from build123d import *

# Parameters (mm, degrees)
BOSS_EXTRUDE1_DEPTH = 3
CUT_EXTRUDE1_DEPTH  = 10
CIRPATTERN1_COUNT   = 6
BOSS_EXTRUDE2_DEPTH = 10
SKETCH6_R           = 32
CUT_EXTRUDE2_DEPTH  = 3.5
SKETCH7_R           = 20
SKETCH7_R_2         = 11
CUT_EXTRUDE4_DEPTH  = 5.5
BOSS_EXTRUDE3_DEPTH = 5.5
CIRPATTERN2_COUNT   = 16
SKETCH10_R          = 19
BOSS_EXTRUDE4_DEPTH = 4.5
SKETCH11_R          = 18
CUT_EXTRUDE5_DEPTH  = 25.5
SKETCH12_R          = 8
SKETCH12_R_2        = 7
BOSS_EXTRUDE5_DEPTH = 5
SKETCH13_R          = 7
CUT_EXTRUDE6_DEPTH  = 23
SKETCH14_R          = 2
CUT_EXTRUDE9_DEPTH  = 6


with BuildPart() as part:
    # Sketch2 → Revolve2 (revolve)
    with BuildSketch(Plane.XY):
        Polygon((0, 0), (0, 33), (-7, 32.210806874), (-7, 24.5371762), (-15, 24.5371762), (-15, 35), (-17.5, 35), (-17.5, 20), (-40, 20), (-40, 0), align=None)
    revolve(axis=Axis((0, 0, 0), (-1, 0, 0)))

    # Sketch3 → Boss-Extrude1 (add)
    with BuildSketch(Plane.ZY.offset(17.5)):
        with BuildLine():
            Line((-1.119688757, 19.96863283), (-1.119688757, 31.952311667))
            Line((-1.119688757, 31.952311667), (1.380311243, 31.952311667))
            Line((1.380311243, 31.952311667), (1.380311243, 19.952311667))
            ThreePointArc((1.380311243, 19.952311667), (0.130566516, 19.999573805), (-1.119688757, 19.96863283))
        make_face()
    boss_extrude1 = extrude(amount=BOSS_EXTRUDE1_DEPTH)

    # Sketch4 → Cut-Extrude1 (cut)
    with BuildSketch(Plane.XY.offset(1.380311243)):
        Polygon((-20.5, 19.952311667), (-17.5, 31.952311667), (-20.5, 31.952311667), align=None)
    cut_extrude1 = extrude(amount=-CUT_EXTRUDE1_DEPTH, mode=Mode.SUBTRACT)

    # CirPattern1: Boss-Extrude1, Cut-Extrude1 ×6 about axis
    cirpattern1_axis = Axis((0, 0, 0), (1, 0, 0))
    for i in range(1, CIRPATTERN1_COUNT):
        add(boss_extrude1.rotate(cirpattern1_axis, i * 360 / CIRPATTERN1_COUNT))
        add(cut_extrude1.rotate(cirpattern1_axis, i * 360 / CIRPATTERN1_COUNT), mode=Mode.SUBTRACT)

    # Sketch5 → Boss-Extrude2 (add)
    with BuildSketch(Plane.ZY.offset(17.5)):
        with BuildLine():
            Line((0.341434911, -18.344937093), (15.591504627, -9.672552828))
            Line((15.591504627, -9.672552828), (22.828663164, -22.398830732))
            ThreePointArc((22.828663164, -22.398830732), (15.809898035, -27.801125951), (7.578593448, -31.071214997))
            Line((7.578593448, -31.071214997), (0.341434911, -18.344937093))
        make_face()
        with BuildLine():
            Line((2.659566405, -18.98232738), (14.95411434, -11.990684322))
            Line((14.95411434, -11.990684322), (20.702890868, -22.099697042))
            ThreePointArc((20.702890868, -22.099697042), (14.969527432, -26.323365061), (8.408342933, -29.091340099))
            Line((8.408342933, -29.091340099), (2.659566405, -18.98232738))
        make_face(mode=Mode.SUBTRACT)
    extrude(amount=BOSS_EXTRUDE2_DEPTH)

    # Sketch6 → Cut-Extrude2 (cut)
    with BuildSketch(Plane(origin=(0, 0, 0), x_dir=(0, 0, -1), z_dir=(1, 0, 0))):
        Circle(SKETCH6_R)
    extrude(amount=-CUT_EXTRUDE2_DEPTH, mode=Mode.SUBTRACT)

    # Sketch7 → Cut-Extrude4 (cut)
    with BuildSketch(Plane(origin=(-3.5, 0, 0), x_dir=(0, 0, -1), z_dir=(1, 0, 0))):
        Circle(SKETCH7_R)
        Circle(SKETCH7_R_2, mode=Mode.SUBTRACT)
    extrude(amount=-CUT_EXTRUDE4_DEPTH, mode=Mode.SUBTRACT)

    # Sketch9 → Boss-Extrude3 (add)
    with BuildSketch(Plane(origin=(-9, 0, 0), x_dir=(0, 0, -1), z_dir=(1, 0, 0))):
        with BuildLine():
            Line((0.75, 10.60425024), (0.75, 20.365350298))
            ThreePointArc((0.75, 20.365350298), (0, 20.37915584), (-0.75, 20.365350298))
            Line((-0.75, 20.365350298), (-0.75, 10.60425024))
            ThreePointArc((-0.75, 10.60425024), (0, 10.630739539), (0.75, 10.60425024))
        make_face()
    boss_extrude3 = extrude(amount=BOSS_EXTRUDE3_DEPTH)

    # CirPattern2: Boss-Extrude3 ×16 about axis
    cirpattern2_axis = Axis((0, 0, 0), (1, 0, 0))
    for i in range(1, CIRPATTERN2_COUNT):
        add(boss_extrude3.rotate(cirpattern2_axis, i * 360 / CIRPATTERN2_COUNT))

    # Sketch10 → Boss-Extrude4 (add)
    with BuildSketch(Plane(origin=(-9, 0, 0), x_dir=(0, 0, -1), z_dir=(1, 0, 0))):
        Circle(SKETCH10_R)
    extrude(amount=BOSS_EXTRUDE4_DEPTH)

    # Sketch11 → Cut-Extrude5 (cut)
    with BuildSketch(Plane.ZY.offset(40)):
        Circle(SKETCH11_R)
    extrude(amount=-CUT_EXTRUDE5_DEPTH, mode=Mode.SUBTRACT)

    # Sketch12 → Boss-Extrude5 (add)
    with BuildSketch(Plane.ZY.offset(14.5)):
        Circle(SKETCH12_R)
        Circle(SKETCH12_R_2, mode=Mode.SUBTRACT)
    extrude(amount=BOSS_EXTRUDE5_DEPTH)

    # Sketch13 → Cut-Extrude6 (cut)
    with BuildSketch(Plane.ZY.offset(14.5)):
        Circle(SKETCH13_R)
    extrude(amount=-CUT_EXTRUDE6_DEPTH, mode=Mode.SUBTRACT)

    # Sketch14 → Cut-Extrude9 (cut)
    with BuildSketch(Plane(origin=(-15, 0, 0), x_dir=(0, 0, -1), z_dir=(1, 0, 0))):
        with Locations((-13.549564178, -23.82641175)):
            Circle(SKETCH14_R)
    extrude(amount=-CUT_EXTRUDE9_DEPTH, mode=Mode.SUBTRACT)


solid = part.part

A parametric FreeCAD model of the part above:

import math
import FreeCAD as App
import Part
import Sketcher
Q = App.Units.Quantity

doc = App.newDocument("Part")
params = doc.addObject("Spreadsheet::Sheet", "Params")
for row, (alias, value) in enumerate([
    ("sketch1_width", "8 mm"),
    ("sketch1_width2", "40 mm"),
    ("sketch1_height", "33 mm"),
    ("sketch1_height2", "15 mm"),
    ("sketch1_height3", "20 mm"),
    ("revolution_angle", "360 deg"),
    ("sketch2_radius", "20 mm"),
    ("sketch2_width", "12 mm"),
    ("sketch2_height", "2.5 mm"),
    ("pad1_length", "3 mm"),
    ("sketch3_width", "3 mm"),
    ("sketch3_height", "12 mm"),
    ("pocket1_length", "10 mm"),
    ("pad2_length", "10 mm"),
    ("sketch5_diameter", "64 mm"),
    ("pocket2_length", "3.5 mm"),
    ("sketch6_diameter", "40 mm"),
    ("sketch6_diameter2", "22 mm"),
    ("pocket3_length", "5.5 mm"),
    ("pad3_length", "5.5 mm"),
    ("sketch8_diameter", "38 mm"),
    ("pad4_length", "4.5 mm"),
    ("sketch9_diameter", "36 mm"),
    ("pocket4_length", "25.5 mm"),
    ("sketch10_diameter", "16 mm"),
    ("sketch10_diameter2", "14 mm"),
    ("pad5_length", "5 mm"),
    ("sketch11_diameter", "14 mm"),
    ("pocket5_length", "23 mm"),
    ("sketch12_diameter", "4 mm"),
    ("pocket6_length", "6 mm"),
], start=1):
    params.set(f"A{row}", alias)
    params.set(f"B{row}", "=" + value)
    params.setAlias(f"B{row}", alias)

body = doc.addObject("PartDesign::Body", "Body")

# Sketch on XY plane
sketch1 = doc.addObject("Sketcher::SketchObject", "Sketch")
body.addObject(sketch1)
sketch1.AttachmentSupport = (doc.XY_Plane, [""])
sketch1.MapMode = "FlatFace"
sketch1.addGeometry([
    Part.LineSegment(App.Vector(0, 0, 0), App.Vector(0, 33, 0)),  # 0
    Part.LineSegment(App.Vector(0, 33, 0), App.Vector(-7, 32.2, 0)),  # 1
    Part.LineSegment(App.Vector(-7, 32.2, 0), App.Vector(-7, 24.5, 0)),  # 2
    Part.LineSegment(App.Vector(-7, 24.5, 0), App.Vector(-15, 24.5, 0)),  # 3
    Part.LineSegment(App.Vector(-15, 24.5, 0), App.Vector(-15, 35, 0)),  # 4
    Part.LineSegment(App.Vector(-15, 35, 0), App.Vector(-17.5, 35, 0)),  # 5
    Part.LineSegment(App.Vector(-17.5, 35, 0), App.Vector(-17.5, 20, 0)),  # 6
    Part.LineSegment(App.Vector(-17.5, 20, 0), App.Vector(-40, 20, 0)),  # 7
    Part.LineSegment(App.Vector(-40, 20, 0), App.Vector(-40, 0, 0)),  # 8
    Part.LineSegment(App.Vector(-40, 0, 0), App.Vector(0, 0, 0)),  # 9
], False)
sketch1.addConstraint([
    Sketcher.Constraint("Coincident", 0, 2, 1, 1),
    Sketcher.Constraint("Coincident", 1, 2, 2, 1),
    Sketcher.Constraint("Coincident", 2, 2, 3, 1),
    Sketcher.Constraint("Coincident", 3, 2, 4, 1),
    Sketcher.Constraint("Coincident", 4, 2, 5, 1),
    Sketcher.Constraint("Coincident", 5, 2, 6, 1),
    Sketcher.Constraint("Coincident", 6, 2, 7, 1),
    Sketcher.Constraint("Coincident", 7, 2, 8, 1),
    Sketcher.Constraint("Coincident", 8, 2, 9, 1),
    Sketcher.Constraint("Coincident", 9, 2, 0, 1),
    Sketcher.Constraint("Vertical", 0),
    Sketcher.Constraint("Vertical", 2),
    Sketcher.Constraint("Horizontal", 3),
    Sketcher.Constraint("Vertical", 4),
    Sketcher.Constraint("Horizontal", 5),
    Sketcher.Constraint("Vertical", 6),
    Sketcher.Constraint("Horizontal", 7),
    Sketcher.Constraint("Vertical", 8),
    Sketcher.Constraint("Horizontal", 9),
    Sketcher.Constraint("Coincident", 9, 2, -1, 1),
    Sketcher.Constraint("DistanceX", 3, 2, 3, 1, Q("8 mm")),
    Sketcher.Constraint("DistanceX", 9, 1, 9, 2, Q("40 mm")),
    Sketcher.Constraint("DistanceY", 0, 1, 0, 2, Q("33 mm")),
    Sketcher.Constraint("DistanceY", 6, 2, 6, 1, Q("15 mm")),
    Sketcher.Constraint("DistanceY", 8, 2, 8, 1, Q("20 mm")),
    Sketcher.Constraint("DistanceX", 5, 2, 5, 1, Q("2.5 mm")),
    Sketcher.Constraint("DistanceX", 7, 2, 7, 1, Q("22.5 mm")),
    Sketcher.Constraint("DistanceY", 2, 2, 2, 1, Q("7.673631 mm")),
    Sketcher.Constraint("DistanceY", 4, 1, 4, 2, Q("10.462824 mm")),
])
sketch1.setExpression("Constraints[20]", "Params.sketch1_width")
sketch1.setExpression("Constraints[21]", "Params.sketch1_width2")
sketch1.setExpression("Constraints[22]", "Params.sketch1_height")
sketch1.setExpression("Constraints[23]", "Params.sketch1_height2")
sketch1.setExpression("Constraints[24]", "Params.sketch1_height3")
revolution = doc.addObject("PartDesign::Revolution", "Revolution")
body.addObject(revolution)
revolution.Profile = sketch1
revolution.ReferenceAxis = (sketch1, ["H_Axis"])
revolution.setExpression("Angle", "Params.revolution_angle")

# Sketch on YZ plane
sketch2 = doc.addObject("Sketcher::SketchObject", "Sketch001")
body.addObject(sketch2)
sketch2.AttachmentSupport = (doc.YZ_Plane, [""])
sketch2.MapMode = "FlatFace"
sketch2.AttachmentOffset = App.Placement(App.Vector(0, 0, -17.5), App.Rotation())
sketch2.addGeometry([
    Part.LineSegment(App.Vector(32, -1.1, 0), App.Vector(20, -1.1, 0)),
    Part.ArcOfCircle(Part.Circle(App.Vector(0, 0, 0), App.Vector(0, 0, 1), 20), math.radians(-3.21), math.radians(3.96)),
    Part.LineSegment(App.Vector(20, 1.4, 0), App.Vector(32, 1.4, 0)),
    Part.LineSegment(App.Vector(32, 1.4, 0), App.Vector(32, -1.1, 0)),
], False)
sketch2.addConstraint([
    Sketcher.Constraint("Coincident", 0, 2, 1, 1),
    Sketcher.Constraint("Coincident", 1, 2, 2, 1),
    Sketcher.Constraint("Coincident", 2, 2, 3, 1),
    Sketcher.Constraint("Coincident", 3, 2, 0, 1),
    Sketcher.Constraint("Horizontal", 0),
    Sketcher.Constraint("Horizontal", 2),
    Sketcher.Constraint("Vertical", 3),
    Sketcher.Constraint("Coincident", 1, 3, -1, 1),
    Sketcher.Constraint("Radius", 1, Q("20 mm")),
    Sketcher.Constraint("DistanceX", 2, 1, 2, 2, Q("12 mm")),
    Sketcher.Constraint("DistanceY", 3, 2, 3, 1, Q("2.5 mm")),
    Sketcher.Constraint("DistanceX", 0, 2, 0, 1, Q("11.983679 mm")),
])
sketch2.setExpression("Constraints[8]", "Params.sketch2_radius")
sketch2.setExpression("Constraints[9]", "Params.sketch2_width")
sketch2.setExpression("Constraints[10]", "Params.sketch2_height")
pad1 = doc.addObject("PartDesign::Pad", "Pad")
body.addObject(pad1)
pad1.Profile = sketch2
pad1.setExpression("Length", "Params.pad1_length")
pad1.Reversed = True

# Sketch on XY plane
sketch3 = doc.addObject("Sketcher::SketchObject", "Sketch002")
body.addObject(sketch3)
sketch3.AttachmentSupport = (doc.XY_Plane, [""])
sketch3.MapMode = "FlatFace"
sketch3.AttachmentOffset = App.Placement(App.Vector(0, 0, 1.380311), App.Rotation())
sketch3.addGeometry([
    Part.LineSegment(App.Vector(-20.5, 20, 0), App.Vector(-17.5, 32, 0)),
    Part.LineSegment(App.Vector(-17.5, 32, 0), App.Vector(-20.5, 32, 0)),
    Part.LineSegment(App.Vector(-20.5, 32, 0), App.Vector(-20.5, 20, 0)),
], False)
sketch3.addConstraint([
    Sketcher.Constraint("Coincident", 0, 2, 1, 1),
    Sketcher.Constraint("Coincident", 1, 2, 2, 1),
    Sketcher.Constraint("Coincident", 2, 2, 0, 1),
    Sketcher.Constraint("Horizontal", 1),
    Sketcher.Constraint("Vertical", 2),
    Sketcher.Constraint("DistanceX", 1, 2, 1, 1, Q("3 mm")),
    Sketcher.Constraint("DistanceY", 2, 2, 2, 1, Q("12 mm")),
    Sketcher.Constraint("DistanceX", 0, 2, -1, 1, Q("17.5 mm")),
    Sketcher.Constraint("DistanceY", -1, 1, 0, 2, Q("31.952312 mm")),
])
sketch3.setExpression("Constraints[5]", "Params.sketch3_width")
sketch3.setExpression("Constraints[6]", "Params.sketch3_height")
pocket1 = doc.addObject("PartDesign::Pocket", "Pocket")
body.addObject(pocket1)
pocket1.Profile = sketch3
pocket1.setExpression("Length", "Params.pocket1_length")
doc.recompute()

polarpattern = doc.addObject("PartDesign::PolarPattern", "PolarPattern")
body.addObject(polarpattern)
polarpattern.Originals = [pad1, pocket1]
polarpattern.Axis = (doc.X_Axis, [""])
polarpattern.Angle = 360
polarpattern.Occurrences = 6
body.Tip = polarpattern

# Sketch on YZ plane
sketch4 = doc.addObject("Sketcher::SketchObject", "Sketch003")
body.addObject(sketch4)
sketch4.AttachmentSupport = (doc.YZ_Plane, [""])
sketch4.MapMode = "FlatFace"
sketch4.AttachmentOffset = App.Placement(App.Vector(0, 0, -17.5), App.Rotation())
sketch4.addGeometry([
    Part.LineSegment(App.Vector(-10, 16, 0), App.Vector(-18, 0, 0)),  # 0
    Part.LineSegment(App.Vector(-18, 0, 0), App.Vector(-31, 8, 0)),  # 1
    Part.ArcOfCircle(Part.Circle(App.Vector(0, 0, 0), App.Vector(0, 0, 1), 32), math.radians(134), math.radians(166)),  # 2
    Part.LineSegment(App.Vector(-22, 23, 0), App.Vector(-10, 16, 0)),  # 3
    Part.LineSegment(App.Vector(-19, 3, 0), App.Vector(-12, 15, 0)),  # 4
    Part.LineSegment(App.Vector(-12, 15, 0), App.Vector(-22, 21, 0)),  # 5
    Part.ArcOfCircle(Part.Circle(App.Vector(0, 0, 0), App.Vector(0, 0, 1), 30), math.radians(137), math.radians(164)),  # 6
    Part.LineSegment(App.Vector(-29, 8, 0), App.Vector(-19, 3, 0)),  # 7
], False)
sketch4.addConstraint([
    Sketcher.Constraint("Coincident", 0, 2, 1, 1),
    Sketcher.Constraint("Coincident", 1, 2, 2, 2),
    Sketcher.Constraint("Coincident", 2, 1, 3, 1),
    Sketcher.Constraint("Coincident", 3, 2, 0, 1),
    Sketcher.Constraint("Coincident", 4, 2, 5, 1),
    Sketcher.Constraint("Coincident", 5, 2, 6, 1),
    Sketcher.Constraint("Coincident", 6, 2, 7, 1),
    Sketcher.Constraint("Coincident", 7, 2, 4, 1),
    Sketcher.Constraint("Coincident", 2, 3, -1, 1),
    Sketcher.Constraint("Coincident", 6, 3, -1, 1),
    Sketcher.Constraint("Perpendicular", 0, 1),
    Sketcher.Constraint("Parallel", 1, 3),
    Sketcher.Constraint("Perpendicular", 3, 4),
    Sketcher.Constraint("Perpendicular", 4, 5),
    Sketcher.Constraint("Parallel", 5, 7),
    Sketcher.Constraint("Equal", 1, 3),
    Sketcher.Constraint("Equal", 5, 7),
    Sketcher.Constraint("Radius", 2, Q("31.982112 mm")),
    Sketcher.Constraint("Radius", 6, Q("30.282112 mm")),
    Sketcher.Constraint("Distance", 1, Q("14.640171 mm")),
    Sketcher.Constraint("DistanceX", 2, 1, -1, 1, Q("22.398831 mm")),
    Sketcher.Constraint("DistanceY", -1, 1, 5, 2, Q("20.702891 mm")),
    Sketcher.Constraint("DistanceX", 6, 2, -1, 1, Q("29.09134 mm")),
    Sketcher.Constraint("DistanceX", 4, 2, 3, 2, Q("2.318131 mm")),
])
pad2 = doc.addObject("PartDesign::Pad", "Pad001")
body.addObject(pad2)
pad2.Profile = sketch4
pad2.setExpression("Length", "Params.pad2_length")
pad2.Reversed = True

# Sketch on YZ plane
sketch5 = doc.addObject("Sketcher::SketchObject", "Sketch004")
body.addObject(sketch5)
sketch5.AttachmentSupport = (doc.YZ_Plane, [""])
sketch5.MapMode = "FlatFace"
sketch5.addGeometry(Part.Circle(App.Vector(0, 0, 0), App.Vector(0, 0, 1), 32), False)
sketch5.addConstraint([
    Sketcher.Constraint("Coincident", 0, 3, -1, 1),
    Sketcher.Constraint("Diameter", 0, Q("64 mm")),
])
sketch5.setExpression("Constraints[1]", "Params.sketch5_diameter")
pocket2 = doc.addObject("PartDesign::Pocket", "Pocket001")
body.addObject(pocket2)
pocket2.Profile = sketch5
pocket2.setExpression("Length", "Params.pocket2_length")

# Sketch on YZ plane
sketch6 = doc.addObject("Sketcher::SketchObject", "Sketch005")
body.addObject(sketch6)
sketch6.AttachmentSupport = (doc.YZ_Plane, [""])
sketch6.MapMode = "FlatFace"
sketch6.AttachmentOffset = App.Placement(App.Vector(0, 0, -3.5), App.Rotation())
sketch6.addGeometry([
    Part.Circle(App.Vector(0, 0, 0), App.Vector(0, 0, 1), 20),
    Part.Circle(App.Vector(0, 0, 0), App.Vector(0, 0, 1), 11),
], False)
sketch6.addConstraint([
    Sketcher.Constraint("Coincident", 0, 3, -1, 1),
    Sketcher.Constraint("Coincident", 1, 3, -1, 1),
    Sketcher.Constraint("Diameter", 0, Q("40 mm")),
    Sketcher.Constraint("Diameter", 1, Q("22 mm")),
])
sketch6.setExpression("Constraints[2]", "Params.sketch6_diameter")
sketch6.setExpression("Constraints[3]", "Params.sketch6_diameter2")
pocket3 = doc.addObject("PartDesign::Pocket", "Pocket002")
body.addObject(pocket3)
pocket3.Profile = sketch6
pocket3.setExpression("Length", "Params.pocket3_length")

# Sketch on YZ plane
sketch7 = doc.addObject("Sketcher::SketchObject", "Sketch006")
body.addObject(sketch7)
sketch7.AttachmentSupport = (doc.YZ_Plane, [""])
sketch7.MapMode = "FlatFace"
sketch7.AttachmentOffset = App.Placement(App.Vector(0, 0, -9), App.Rotation())
sketch7.addGeometry([
    Part.LineSegment(App.Vector(10.6, -0.8, 0), App.Vector(20.4, -0.8, 0)),
    Part.ArcOfCircle(Part.Circle(App.Vector(0, 0, 0), App.Vector(0, 0, 1), 20.4), math.radians(-2.11), math.radians(2.11)),
    Part.LineSegment(App.Vector(20.4, 0.8, 0), App.Vector(10.6, 0.8, 0)),
    Part.ArcOfCircle(Part.Circle(App.Vector(0, 0, 0), App.Vector(0, 0, 1), 10.6), math.radians(-4.05), math.radians(4.05)),
], False)
sketch7.addConstraint([
    Sketcher.Constraint("Coincident", 0, 2, 1, 1),
    Sketcher.Constraint("Coincident", 1, 2, 2, 1),
    Sketcher.Constraint("Coincident", 2, 2, 3, 2),
    Sketcher.Constraint("Coincident", 3, 1, 0, 1),
    Sketcher.Constraint("Horizontal", 0),
    Sketcher.Constraint("Horizontal", 2),
    Sketcher.Constraint("Coincident", 1, 3, -1, 1),
    Sketcher.Constraint("Coincident", 3, 3, -1, 1),
    Sketcher.Constraint("Vertical", 0, 2, 1, 2),
    Sketcher.Constraint("DistanceY", 0, 2, 1, 2, Q("1.5 mm")),
    Sketcher.Constraint("Radius", 3, Q("10.63074 mm")),
    Sketcher.Constraint("DistanceX", 0, 1, 0, 2, Q("9.7611 mm")),
])
pad3 = doc.addObject("PartDesign::Pad", "Pad002")
body.addObject(pad3)
pad3.Profile = sketch7
pad3.setExpression("Length", "Params.pad3_length")
doc.recompute()

polarpattern2 = doc.addObject("PartDesign::PolarPattern", "PolarPattern001")
body.addObject(polarpattern2)
polarpattern2.Originals = [pad3]
polarpattern2.Axis = (doc.X_Axis, [""])
polarpattern2.Angle = 360
polarpattern2.Occurrences = 16
body.Tip = polarpattern2

# Sketch on YZ plane
sketch8 = doc.addObject("Sketcher::SketchObject", "Sketch007")
body.addObject(sketch8)
sketch8.AttachmentSupport = (doc.YZ_Plane, [""])
sketch8.MapMode = "FlatFace"
sketch8.AttachmentOffset = App.Placement(App.Vector(0, 0, -9), App.Rotation())
sketch8.addGeometry(Part.Circle(App.Vector(0, 0, 0), App.Vector(0, 0, 1), 19), False)
sketch8.addConstraint([
    Sketcher.Constraint("Coincident", 0, 3, -1, 1),
    Sketcher.Constraint("Diameter", 0, Q("38 mm")),
])
sketch8.setExpression("Constraints[1]", "Params.sketch8_diameter")
pad4 = doc.addObject("PartDesign::Pad", "Pad003")
body.addObject(pad4)
pad4.Profile = sketch8
pad4.setExpression("Length", "Params.pad4_length")

# Sketch on YZ plane
sketch9 = doc.addObject("Sketcher::SketchObject", "Sketch008")
body.addObject(sketch9)
sketch9.AttachmentSupport = (doc.YZ_Plane, [""])
sketch9.MapMode = "FlatFace"
sketch9.AttachmentOffset = App.Placement(App.Vector(0, 0, -40), App.Rotation())
sketch9.addGeometry(Part.Circle(App.Vector(0, 0, 0), App.Vector(0, 0, 1), 18), False)
sketch9.addConstraint([
    Sketcher.Constraint("Coincident", 0, 3, -1, 1),
    Sketcher.Constraint("Diameter", 0, Q("36 mm")),
])
sketch9.setExpression("Constraints[1]", "Params.sketch9_diameter")
pocket4 = doc.addObject("PartDesign::Pocket", "Pocket003")
body.addObject(pocket4)
pocket4.Profile = sketch9
pocket4.setExpression("Length", "Params.pocket4_length")
pocket4.Reversed = True

# Sketch on YZ plane
sketch10 = doc.addObject("Sketcher::SketchObject", "Sketch009")
body.addObject(sketch10)
sketch10.AttachmentSupport = (doc.YZ_Plane, [""])
sketch10.MapMode = "FlatFace"
sketch10.AttachmentOffset = App.Placement(App.Vector(0, 0, -14.5), App.Rotation())
sketch10.addGeometry([
    Part.Circle(App.Vector(0, 0, 0), App.Vector(0, 0, 1), 8),
    Part.Circle(App.Vector(0, 0, 0), App.Vector(0, 0, 1), 7),
], False)
sketch10.addConstraint([
    Sketcher.Constraint("Coincident", 0, 3, -1, 1),
    Sketcher.Constraint("Coincident", 1, 3, -1, 1),
    Sketcher.Constraint("Diameter", 0, Q("16 mm")),
    Sketcher.Constraint("Diameter", 1, Q("14 mm")),
])
sketch10.setExpression("Constraints[2]", "Params.sketch10_diameter")
sketch10.setExpression("Constraints[3]", "Params.sketch10_diameter2")
pad5 = doc.addObject("PartDesign::Pad", "Pad004")
body.addObject(pad5)
pad5.Profile = sketch10
pad5.setExpression("Length", "Params.pad5_length")
pad5.Reversed = True

# Sketch on YZ plane
sketch11 = doc.addObject("Sketcher::SketchObject", "Sketch010")
body.addObject(sketch11)
sketch11.AttachmentSupport = (doc.YZ_Plane, [""])
sketch11.MapMode = "FlatFace"
sketch11.AttachmentOffset = App.Placement(App.Vector(0, 0, -14.5), App.Rotation())
sketch11.addGeometry(Part.Circle(App.Vector(0, 0, 0), App.Vector(0, 0, 1), 7), False)
sketch11.addConstraint([
    Sketcher.Constraint("Coincident", 0, 3, -1, 1),
    Sketcher.Constraint("Diameter", 0, Q("14 mm")),
])
sketch11.setExpression("Constraints[1]", "Params.sketch11_diameter")
pocket5 = doc.addObject("PartDesign::Pocket", "Pocket004")
body.addObject(pocket5)
pocket5.Profile = sketch11
pocket5.setExpression("Length", "Params.pocket5_length")
pocket5.Reversed = True

# Sketch on YZ plane
sketch12 = doc.addObject("Sketcher::SketchObject", "Sketch011")
body.addObject(sketch12)
sketch12.AttachmentSupport = (doc.YZ_Plane, [""])
sketch12.MapMode = "FlatFace"
sketch12.AttachmentOffset = App.Placement(App.Vector(0, 0, -15), App.Rotation())
sketch12.addGeometry(Part.Circle(App.Vector(-23.8, 13.5, 0), App.Vector(0, 0, 1), 2), False)
sketch12.addConstraint([
    Sketcher.Constraint("Diameter", 0, Q("4 mm")),
    Sketcher.Constraint("DistanceX", 0, 3, -1, 1, Q("23.826412 mm")),
    Sketcher.Constraint("DistanceY", -1, 1, 0, 3, Q("13.549564 mm")),
])
sketch12.setExpression("Constraints[0]", "Params.sketch12_diameter")
pocket6 = doc.addObject("PartDesign::Pocket", "Pocket005")
body.addObject(pocket6)
pocket6.Profile = sketch12
pocket6.setExpression("Length", "Params.pocket6_length")

doc.recompute()
